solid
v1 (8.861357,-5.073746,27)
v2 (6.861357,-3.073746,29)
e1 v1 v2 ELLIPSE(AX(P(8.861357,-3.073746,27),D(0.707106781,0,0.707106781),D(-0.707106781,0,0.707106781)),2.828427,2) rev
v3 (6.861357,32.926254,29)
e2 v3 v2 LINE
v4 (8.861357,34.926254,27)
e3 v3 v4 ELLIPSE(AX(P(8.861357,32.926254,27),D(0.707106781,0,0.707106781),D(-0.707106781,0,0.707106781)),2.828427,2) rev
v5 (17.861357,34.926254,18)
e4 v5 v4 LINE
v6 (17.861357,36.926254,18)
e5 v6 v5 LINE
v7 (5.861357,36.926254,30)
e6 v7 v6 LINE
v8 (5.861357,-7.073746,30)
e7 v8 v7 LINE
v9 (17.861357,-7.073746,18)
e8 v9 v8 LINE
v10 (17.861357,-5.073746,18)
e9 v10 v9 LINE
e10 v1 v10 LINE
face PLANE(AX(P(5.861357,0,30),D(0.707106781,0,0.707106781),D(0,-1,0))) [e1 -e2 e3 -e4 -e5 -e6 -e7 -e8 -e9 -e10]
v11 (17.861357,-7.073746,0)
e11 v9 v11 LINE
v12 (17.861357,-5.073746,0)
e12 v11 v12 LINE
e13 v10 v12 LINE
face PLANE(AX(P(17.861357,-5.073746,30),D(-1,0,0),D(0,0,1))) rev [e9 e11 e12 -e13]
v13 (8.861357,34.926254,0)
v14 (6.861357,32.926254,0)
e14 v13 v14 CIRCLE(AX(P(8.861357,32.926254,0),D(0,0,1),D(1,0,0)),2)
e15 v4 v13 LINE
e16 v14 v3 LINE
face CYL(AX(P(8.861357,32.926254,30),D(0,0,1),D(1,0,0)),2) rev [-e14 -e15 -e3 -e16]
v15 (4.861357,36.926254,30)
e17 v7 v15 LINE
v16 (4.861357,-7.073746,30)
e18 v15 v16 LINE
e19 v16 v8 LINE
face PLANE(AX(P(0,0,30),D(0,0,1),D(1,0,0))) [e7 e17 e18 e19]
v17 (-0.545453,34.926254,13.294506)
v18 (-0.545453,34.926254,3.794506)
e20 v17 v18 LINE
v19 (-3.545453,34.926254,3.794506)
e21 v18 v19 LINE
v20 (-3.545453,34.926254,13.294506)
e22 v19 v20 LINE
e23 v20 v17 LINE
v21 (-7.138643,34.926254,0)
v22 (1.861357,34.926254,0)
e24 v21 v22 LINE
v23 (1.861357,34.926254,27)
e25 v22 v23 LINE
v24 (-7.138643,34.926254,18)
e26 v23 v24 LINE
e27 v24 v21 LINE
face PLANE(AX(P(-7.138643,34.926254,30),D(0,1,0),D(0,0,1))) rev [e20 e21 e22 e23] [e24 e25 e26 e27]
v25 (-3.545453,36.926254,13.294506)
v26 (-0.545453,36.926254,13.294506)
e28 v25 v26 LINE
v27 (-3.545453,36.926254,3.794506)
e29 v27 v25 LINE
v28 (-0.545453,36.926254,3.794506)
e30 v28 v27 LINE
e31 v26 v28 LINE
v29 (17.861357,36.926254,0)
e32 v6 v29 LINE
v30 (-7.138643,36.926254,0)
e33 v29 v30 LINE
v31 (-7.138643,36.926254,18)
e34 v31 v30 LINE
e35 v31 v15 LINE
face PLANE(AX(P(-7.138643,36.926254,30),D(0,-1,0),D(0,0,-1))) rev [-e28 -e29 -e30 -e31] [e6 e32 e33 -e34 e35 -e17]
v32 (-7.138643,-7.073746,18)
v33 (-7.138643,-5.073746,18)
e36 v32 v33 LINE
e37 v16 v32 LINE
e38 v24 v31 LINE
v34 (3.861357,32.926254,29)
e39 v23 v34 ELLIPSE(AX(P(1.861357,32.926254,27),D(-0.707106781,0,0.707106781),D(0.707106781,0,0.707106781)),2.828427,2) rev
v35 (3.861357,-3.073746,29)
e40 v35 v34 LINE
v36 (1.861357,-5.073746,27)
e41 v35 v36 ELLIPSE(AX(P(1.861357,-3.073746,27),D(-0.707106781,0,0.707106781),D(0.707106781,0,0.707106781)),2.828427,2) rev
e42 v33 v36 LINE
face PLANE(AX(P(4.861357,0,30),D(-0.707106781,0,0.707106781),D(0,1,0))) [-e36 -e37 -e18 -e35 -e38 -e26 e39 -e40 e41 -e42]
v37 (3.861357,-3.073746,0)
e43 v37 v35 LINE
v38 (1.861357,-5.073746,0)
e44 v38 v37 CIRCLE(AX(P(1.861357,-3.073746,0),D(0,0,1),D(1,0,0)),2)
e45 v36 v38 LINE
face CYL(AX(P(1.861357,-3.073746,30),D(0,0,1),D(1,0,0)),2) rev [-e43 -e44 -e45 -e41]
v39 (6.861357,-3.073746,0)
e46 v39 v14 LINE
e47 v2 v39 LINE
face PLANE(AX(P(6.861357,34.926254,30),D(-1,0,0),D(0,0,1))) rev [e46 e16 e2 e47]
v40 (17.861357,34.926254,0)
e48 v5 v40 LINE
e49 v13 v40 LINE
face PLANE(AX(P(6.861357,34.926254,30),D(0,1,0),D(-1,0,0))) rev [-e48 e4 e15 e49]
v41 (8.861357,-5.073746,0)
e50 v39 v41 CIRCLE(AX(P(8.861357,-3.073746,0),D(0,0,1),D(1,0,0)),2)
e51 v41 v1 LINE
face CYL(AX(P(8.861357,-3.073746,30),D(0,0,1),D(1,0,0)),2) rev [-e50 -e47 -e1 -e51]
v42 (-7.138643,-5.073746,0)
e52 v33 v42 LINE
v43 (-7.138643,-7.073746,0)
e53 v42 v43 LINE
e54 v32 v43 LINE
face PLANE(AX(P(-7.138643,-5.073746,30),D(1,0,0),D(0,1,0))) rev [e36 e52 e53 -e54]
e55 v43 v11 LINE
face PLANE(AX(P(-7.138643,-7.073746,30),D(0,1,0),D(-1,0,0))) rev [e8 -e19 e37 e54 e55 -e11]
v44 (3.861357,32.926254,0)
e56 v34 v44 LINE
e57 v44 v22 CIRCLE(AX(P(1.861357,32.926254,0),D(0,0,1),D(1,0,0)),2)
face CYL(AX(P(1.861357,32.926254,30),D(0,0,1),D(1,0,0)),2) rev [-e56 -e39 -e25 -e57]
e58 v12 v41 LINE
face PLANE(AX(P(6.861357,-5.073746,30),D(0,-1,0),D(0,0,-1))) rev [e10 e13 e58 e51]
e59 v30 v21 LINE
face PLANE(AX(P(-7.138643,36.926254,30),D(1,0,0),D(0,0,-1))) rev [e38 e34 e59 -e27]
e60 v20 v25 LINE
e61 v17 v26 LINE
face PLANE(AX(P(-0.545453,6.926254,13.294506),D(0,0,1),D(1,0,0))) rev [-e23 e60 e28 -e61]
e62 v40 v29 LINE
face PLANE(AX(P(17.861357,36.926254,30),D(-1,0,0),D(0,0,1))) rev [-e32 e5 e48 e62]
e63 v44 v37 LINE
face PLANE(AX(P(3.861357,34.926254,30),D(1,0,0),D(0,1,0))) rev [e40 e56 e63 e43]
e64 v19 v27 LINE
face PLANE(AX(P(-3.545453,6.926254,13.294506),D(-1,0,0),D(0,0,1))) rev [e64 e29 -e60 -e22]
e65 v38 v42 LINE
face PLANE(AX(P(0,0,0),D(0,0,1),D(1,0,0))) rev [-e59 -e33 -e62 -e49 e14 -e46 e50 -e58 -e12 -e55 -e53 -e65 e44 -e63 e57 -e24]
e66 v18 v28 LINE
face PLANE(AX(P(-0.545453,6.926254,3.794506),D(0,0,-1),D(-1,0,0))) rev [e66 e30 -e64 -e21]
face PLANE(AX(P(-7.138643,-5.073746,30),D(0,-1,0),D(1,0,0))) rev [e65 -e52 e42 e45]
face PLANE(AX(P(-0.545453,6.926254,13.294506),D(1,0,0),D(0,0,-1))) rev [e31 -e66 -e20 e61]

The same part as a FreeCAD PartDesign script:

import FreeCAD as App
import Part
import Sketcher


def edges_at(feature, points):
    """Names of the edges that pass closest to the given points."""
    edges = feature.Shape.Edges
    near = lambda p: min(range(len(edges)), key=lambda i: edges[i].distToShape(Part.Vertex(*p))[0])
    return sorted({f"Edge{near(p) + 1}" for p in points})

doc = App.newDocument("Part")
params = doc.addObject("Spreadsheet::Sheet", "Params")
for row, (alias, value) in enumerate([
    ("sketch1_width", "11 mm"),
    ("sketch1_width2", "25 mm"),
    ("sketch1_height", "2 mm"),
    ("sketch1_height2", "40 mm"),
    ("pad1_length", "30 mm"),
    ("chamfer_size", "12 mm"),
    ("fillet_radius", "2 mm"),
    ("sketch2_width", "3 mm"),
    ("sketch2_height", "9.5 mm"),
    ("pocket1_length", "30 mm"),
], start=1):
    params.set(f"A{row}", alias)
    params.set(f"B{row}", "=" + value)
    params.setAlias(f"B{row}", alias)

body = doc.addObject("PartDesign::Body", "Body")

# Sketch on XY plane
sketch1 = body.newObject("Sketcher::SketchObject", "Sketch")
sketch1.AttachmentSupport = (doc.getObject("XY_Plane"), [""])
sketch1.MapMode = "FlatFace"
sketch1.addGeometry(Part.LineSegment(App.Vector(6.9, 34.9, 0), App.Vector(17.9, 34.9, 0)), False)
sketch1.addGeometry(Part.LineSegment(App.Vector(17.9, 34.9, 0), App.Vector(17.9, 36.9, 0)), False)
sketch1.addGeometry(Part.LineSegment(App.Vector(17.9, 36.9, 0), App.Vector(-7.1, 36.9, 0)), False)
sketch1.addGeometry(Part.LineSegment(App.Vector(-7.1, 36.9, 0), App.Vector(-7.1, 34.9, 0)), False)
sketch1.addGeometry(Part.LineSegment(App.Vector(-7.1, 34.9, 0), App.Vector(3.9, 34.9, 0)), False)
sketch1.addGeometry(Part.LineSegment(App.Vector(3.9, 34.9, 0), App.Vector(3.9, -5.1, 0)), False)
sketch1.addGeometry(Part.LineSegment(App.Vector(3.9, -5.1, 0), App.Vector(-7.1, -5.1, 0)), False)
sketch1.addGeometry(Part.LineSegment(App.Vector(-7.1, -5.1, 0), App.Vector(-7.1, -7.1, 0)), False)
sketch1.addGeometry(Part.LineSegment(App.Vector(-7.1, -7.1, 0), App.Vector(17.9, -7.1, 0)), False)
sketch1.addGeometry(Part.LineSegment(App.Vector(17.9, -7.1, 0), App.Vector(17.9, -5.1, 0)), False)
sketch1.addGeometry(Part.LineSegment(App.Vector(17.9, -5.1, 0), App.Vector(6.9, -5.1, 0)), False)
sketch1.addGeometry(Part.LineSegment(App.Vector(6.9, -5.1, 0), App.Vector(6.9, 34.9, 0)), False)
sketch1.addConstraint(Sketcher.Constraint("Coincident", 0, 2, 1, 1))
sketch1.addConstraint(Sketcher.Constraint("Coincident", 1, 2, 2, 1))
sketch1.addConstraint(Sketcher.Constraint("Coincident", 2, 2, 3, 1))
sketch1.addConstraint(Sketcher.Constraint("Coincident", 3, 2, 4, 1))
sketch1.addConstraint(Sketcher.Constraint("Coincident", 4, 2, 5, 1))
sketch1.addConstraint(Sketcher.Constraint("Coincident", 5, 2, 6, 1))
sketch1.addConstraint(Sketcher.Constraint("Coincident", 6, 2, 7, 1))
sketch1.addConstraint(Sketcher.Constraint("Coincident", 7, 2, 8, 1))
sketch1.addConstraint(Sketcher.Constraint("Coincident", 8, 2, 9, 1))
sketch1.addConstraint(Sketcher.Constraint("Coincident", 9, 2, 10, 1))
sketch1.addConstraint(Sketcher.Constraint("Coincident", 10, 2, 11, 1))
sketch1.addConstraint(Sketcher.Constraint("Coincident", 11, 2, 0, 1))
sketch1.addConstraint(Sketcher.Constraint("Horizontal", 0))
sketch1.addConstraint(Sketcher.Constraint("Vertical", 1))
sketch1.addConstraint(Sketcher.Constraint("Horizontal", 2))
sketch1.addConstraint(Sketcher.Constraint("Vertical", 3))
sketch1.addConstraint(Sketcher.Constraint("Horizontal", 4))
sketch1.addConstraint(Sketcher.Constraint("Vertical", 5))
sketch1.addConstraint(Sketcher.Constraint("Horizontal", 6))
sketch1.addConstraint(Sketcher.Constraint("Vertical", 7))
sketch1.addConstraint(Sketcher.Constraint("Horizontal", 8))
sketch1.addConstraint(Sketcher.Constraint("Vertical", 9))
sketch1.addConstraint(Sketcher.Constraint("Horizontal", 10))
sketch1.addConstraint(Sketcher.Constraint("Vertical", 11))
sketch1.addConstraint(Sketcher.Constraint("Horizontal", 0, 2, 3, 2))
sketch1.addConstraint(Sketcher.Constraint("Horizontal", 6, 2, 9, 2))
sketch1.addConstraint(Sketcher.Constraint("Vertical", 3, 2, 6, 2))
sketch1.addConstraint(Sketcher.Constraint("Vertical", 1, 2, 8, 2))
sketch1.addConstraint(Sketcher.Constraint("Equal", 0, 4))
sketch1.addConstraint(Sketcher.Constraint("Equal", 3, 7))
sketch1.addConstraint(Sketcher.Constraint("DistanceX", 0, 1, 0, 2, 11.0))
sketch1.addConstraint(Sketcher.Constraint("DistanceX", 2, 2, 2, 1, 25.0))
sketch1.addConstraint(Sketcher.Constraint("DistanceY", 1, 1, 1, 2, 2.0))
sketch1.addConstraint(Sketcher.Constraint("DistanceY", 5, 2, 5, 1, 40.0))
sketch1.addConstraint(Sketcher.Constraint("DistanceX", -1, 1, 0, 2, 17.861357))
sketch1.addConstraint(Sketcher.Constraint("DistanceY", -1, 1, 0, 2, 34.926254))
sketch1.setExpression("Constraints[30]", "Params.sketch1_width")
sketch1.setExpression("Constraints[31]", "Params.sketch1_width2")
sketch1.setExpression("Constraints[32]", "Params.sketch1_height")
sketch1.setExpression("Constraints[33]", "Params.sketch1_height2")
pad1 = body.newObject("PartDesign::Pad", "Pad")
pad1.Profile = sketch1
pad1.setExpression("Length", "Params.pad1_length")
doc.recompute()

chamfer = body.newObject("PartDesign::Chamfer", "Chamfer")
chamfer.Base = (pad1, edges_at(pad1, [(-7.139, 35.926, 30), (17.861, 35.926, 30)]))
chamfer.setExpression("Size", "Params.chamfer_size")
doc.recompute()

fillet = body.newObject("PartDesign::Fillet", "Fillet")
fillet.Base = (chamfer, edges_at(chamfer, [
    (3.861, -5.074, 14.5),
    (3.861, 34.926, 14.5),
    (6.861, 34.926, 14.5),
    (6.861, -5.074, 14.5),
]))
fillet.setExpression("Radius", "Params.fillet_radius")

# Sketch on XZ plane
sketch2 = body.newObject("Sketcher::SketchObject", "Sketch001")
sketch2.AttachmentSupport = (doc.getObject("XZ_Plane"), [""])
sketch2.MapMode = "FlatFace"
sketch2.AttachmentOffset = App.Placement(App.Vector(0, 0, -36.926254), App.Rotation())
sketch2.addGeometry(Part.LineSegment(App.Vector(-3.5, 3.8, 0), App.Vector(-3.5, 13.3, 0)), False)
sketch2.addGeometry(Part.LineSegment(App.Vector(-3.5, 13.3, 0), App.Vector(-0.5, 13.3, 0)), False)
sketch2.addGeometry(Part.LineSegment(App.Vector(-0.5, 13.3, 0), App.Vector(-0.5, 3.8, 0)), False)
sketch2.addGeometry(Part.LineSegment(App.Vector(-0.5, 3.8, 0), App.Vector(-3.5, 3.8, 0)), False)
sketch2.addConstraint(Sketcher.Constraint("Coincident", 0, 2, 1, 1))
sketch2.addConstraint(Sketcher.Constraint("Coincident", 1, 2, 2, 1))
sketch2.addConstraint(Sketcher.Constraint("Coincident", 2, 2, 3, 1))
sketch2.addConstraint(Sketcher.Constraint("Coincident", 3, 2, 0, 1))
sketch2.addConstraint(Sketcher.Constraint("Vertical", 0))
sketch2.addConstraint(Sketcher.Constraint("Horizontal", 1))
sketch2.addConstraint(Sketcher.Constraint("Vertical", 2))
sketch2.addConstraint(Sketcher.Constraint("Horizontal", 3))
sketch2.addConstraint(Sketcher.Constraint("DistanceX", 1, 1, 1, 2, 3.0))
sketch2.addConstraint(Sketcher.Constraint("DistanceY", 0, 1, 0, 2, 9.5))
sketch2.addConstraint(Sketcher.Constraint("DistanceX", 0, 2, -1, 1, 3.545453))
sketch2.addConstraint(Sketcher.Constraint("DistanceY", -1, 1, 0, 2, 13.294506))
sketch2.setExpression("Constraints[8]", "Params.sketch2_width")
sketch2.setExpression("Constraints[9]", "Params.sketch2_height")
pocket1 = body.newObject("PartDesign::Pocket", "Pocket")
pocket1.Profile = sketch2
pocket1.setExpression("Length", "Params.pocket1_length")
pocket1.Reversed = True

doc.recompute()
